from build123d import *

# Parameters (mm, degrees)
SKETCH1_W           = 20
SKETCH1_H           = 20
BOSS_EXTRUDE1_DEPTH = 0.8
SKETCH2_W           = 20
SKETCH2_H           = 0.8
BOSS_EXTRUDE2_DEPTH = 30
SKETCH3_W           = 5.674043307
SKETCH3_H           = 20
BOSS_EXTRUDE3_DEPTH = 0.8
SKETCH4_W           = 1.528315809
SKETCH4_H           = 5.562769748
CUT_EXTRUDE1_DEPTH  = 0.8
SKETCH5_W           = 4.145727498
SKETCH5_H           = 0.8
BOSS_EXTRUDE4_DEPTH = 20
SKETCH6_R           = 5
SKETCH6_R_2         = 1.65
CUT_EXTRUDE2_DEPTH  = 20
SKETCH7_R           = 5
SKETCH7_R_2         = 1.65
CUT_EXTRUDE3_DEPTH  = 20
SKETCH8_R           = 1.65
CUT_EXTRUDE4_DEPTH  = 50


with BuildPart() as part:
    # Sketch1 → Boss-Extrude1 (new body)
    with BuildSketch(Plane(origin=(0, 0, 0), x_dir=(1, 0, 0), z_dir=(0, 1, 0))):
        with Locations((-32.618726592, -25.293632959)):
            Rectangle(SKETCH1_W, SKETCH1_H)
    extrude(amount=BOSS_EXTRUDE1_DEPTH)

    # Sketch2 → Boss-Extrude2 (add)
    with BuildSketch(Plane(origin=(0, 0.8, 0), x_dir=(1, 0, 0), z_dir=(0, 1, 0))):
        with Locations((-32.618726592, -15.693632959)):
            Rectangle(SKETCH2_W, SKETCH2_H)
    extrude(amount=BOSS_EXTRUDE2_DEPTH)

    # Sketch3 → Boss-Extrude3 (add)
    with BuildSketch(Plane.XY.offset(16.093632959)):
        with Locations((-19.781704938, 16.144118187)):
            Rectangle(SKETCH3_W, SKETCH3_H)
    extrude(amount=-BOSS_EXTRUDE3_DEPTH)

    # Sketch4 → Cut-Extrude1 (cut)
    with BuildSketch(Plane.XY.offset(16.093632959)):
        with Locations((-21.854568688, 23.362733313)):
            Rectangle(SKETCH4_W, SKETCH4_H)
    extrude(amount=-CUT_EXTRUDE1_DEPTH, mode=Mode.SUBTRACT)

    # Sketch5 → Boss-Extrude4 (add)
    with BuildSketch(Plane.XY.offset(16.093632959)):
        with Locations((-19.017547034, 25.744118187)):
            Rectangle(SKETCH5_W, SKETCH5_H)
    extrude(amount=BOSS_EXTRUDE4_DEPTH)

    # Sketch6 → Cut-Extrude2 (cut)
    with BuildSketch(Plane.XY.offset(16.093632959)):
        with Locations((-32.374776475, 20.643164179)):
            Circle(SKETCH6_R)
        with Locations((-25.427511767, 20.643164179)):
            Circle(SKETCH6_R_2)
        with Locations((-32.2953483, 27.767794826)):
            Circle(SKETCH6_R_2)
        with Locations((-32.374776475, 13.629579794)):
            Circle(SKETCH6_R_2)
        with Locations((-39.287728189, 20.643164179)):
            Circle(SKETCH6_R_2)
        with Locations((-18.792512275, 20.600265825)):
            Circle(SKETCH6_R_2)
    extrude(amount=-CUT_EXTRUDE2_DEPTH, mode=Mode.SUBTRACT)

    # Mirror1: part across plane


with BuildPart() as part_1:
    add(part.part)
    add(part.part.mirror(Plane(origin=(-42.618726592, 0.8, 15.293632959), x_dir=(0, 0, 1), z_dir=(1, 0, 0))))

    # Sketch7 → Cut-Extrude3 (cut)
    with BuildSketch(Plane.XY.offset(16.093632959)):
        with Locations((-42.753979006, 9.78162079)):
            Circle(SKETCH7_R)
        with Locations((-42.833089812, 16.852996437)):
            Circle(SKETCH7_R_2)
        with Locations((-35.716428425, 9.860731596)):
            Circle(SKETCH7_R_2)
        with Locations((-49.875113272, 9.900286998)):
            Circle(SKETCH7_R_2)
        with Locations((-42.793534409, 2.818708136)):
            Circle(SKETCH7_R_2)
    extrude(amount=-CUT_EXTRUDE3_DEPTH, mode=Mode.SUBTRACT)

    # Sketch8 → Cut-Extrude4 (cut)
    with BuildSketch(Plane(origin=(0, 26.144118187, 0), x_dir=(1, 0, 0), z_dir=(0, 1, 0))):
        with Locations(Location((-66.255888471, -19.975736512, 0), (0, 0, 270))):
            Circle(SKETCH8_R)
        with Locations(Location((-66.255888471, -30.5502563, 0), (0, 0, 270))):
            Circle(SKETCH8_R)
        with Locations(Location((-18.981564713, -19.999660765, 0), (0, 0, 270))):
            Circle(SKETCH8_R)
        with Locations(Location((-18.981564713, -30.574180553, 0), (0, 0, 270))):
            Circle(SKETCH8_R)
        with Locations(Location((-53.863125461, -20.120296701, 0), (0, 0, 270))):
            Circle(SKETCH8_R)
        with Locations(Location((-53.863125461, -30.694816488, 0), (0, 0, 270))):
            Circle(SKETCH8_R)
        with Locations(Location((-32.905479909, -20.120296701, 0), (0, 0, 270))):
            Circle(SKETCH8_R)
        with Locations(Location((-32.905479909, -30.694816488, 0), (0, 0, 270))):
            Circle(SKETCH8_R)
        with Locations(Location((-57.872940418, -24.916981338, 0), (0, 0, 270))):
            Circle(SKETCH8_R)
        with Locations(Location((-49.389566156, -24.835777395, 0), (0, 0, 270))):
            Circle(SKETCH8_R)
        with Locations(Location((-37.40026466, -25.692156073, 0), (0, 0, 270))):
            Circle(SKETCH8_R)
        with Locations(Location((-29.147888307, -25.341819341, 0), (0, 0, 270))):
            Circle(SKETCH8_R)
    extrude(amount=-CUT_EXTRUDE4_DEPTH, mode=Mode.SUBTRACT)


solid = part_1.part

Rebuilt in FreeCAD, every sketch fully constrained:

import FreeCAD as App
import Part
import Sketcher
from FreeCAD import Vector


def add_polygon(sketch, points):
    """Adds a closed chain of lines whose ends are joined by coincident constraints."""
    first, n = sketch.GeometryCount, len(points)
    for a, b in zip(points, points[1:] + points[:1]):
        sketch.addGeometry(Part.LineSegment(App.Vector(*a, 0), App.Vector(*b, 0)), False)
    for i in range(n):
        sketch.addConstraint(Sketcher.Constraint("Coincident", first + i, 2, first + (i + 1) % n, 1))

doc = App.newDocument("Part")
body = doc.addObject("PartDesign::Body", "Body")

sketch1 = doc.addObject("Sketcher::SketchObject", "Sketch")
body.addObject(sketch1)
sketch1.AttachmentSupport = (doc.XZ_Plane, [""])
sketch1.MapMode = "FlatFace"
add_polygon(sketch1, [(-42.618727, 15.293633), (-42.618727, 35.293633), (-22.618727, 35.293633), (-22.618727, 15.293633)])
sketch1.addConstraint([
    Sketcher.Constraint("Vertical", 0),
    Sketcher.Constraint("Horizontal", 1),
    Sketcher.Constraint("Vertical", 2),
    Sketcher.Constraint("Horizontal", 3),
    Sketcher.Constraint("Equal", 3, 0),
    Sketcher.Constraint("DistanceX", 1, 1, 1, 2, 20.0),
    Sketcher.Constraint("DistanceX", 0, 2, -1, 1, 42.618727),
    Sketcher.Constraint("DistanceY", -1, 1, 0, 2, 35.293633),
])
pad1 = doc.addObject("PartDesign::Pad", "Pad")
body.addObject(pad1)
pad1.Profile = sketch1
pad1.Length = 0.8
pad1.Reversed = True

sketch2 = doc.addObject("Sketcher::SketchObject", "Sketch001")
body.addObject(sketch2)
sketch2.AttachmentSupport = (doc.XZ_Plane, [""])
sketch2.MapMode = "FlatFace"
sketch2.AttachmentOffset = App.Placement(Vector(0, 0, -0.8), App.Rotation())
add_polygon(sketch2, [(-42.618727, 15.293633), (-42.618727, 16.093633), (-22.618727, 16.093633), (-22.618727, 15.293633)])
sketch2.addConstraint([
    Sketcher.Constraint("Vertical", 0),
    Sketcher.Constraint("Horizontal", 1),
    Sketcher.Constraint("Vertical", 2),
    Sketcher.Constraint("Horizontal", 3),
    Sketcher.Constraint("DistanceX", 1, 1, 1, 2, 20.0),
    Sketcher.Constraint("DistanceY", 0, 1, 0, 2, 0.8),
    Sketcher.Constraint("DistanceX", 0, 2, -1, 1, 42.618727),
    Sketcher.Constraint("DistanceY", -1, 1, 0, 2, 16.093633),
])
pad2 = doc.addObject("PartDesign::Pad", "Pad001")
body.addObject(pad2)
pad2.Profile = sketch2
pad2.Length = 30
pad2.Reversed = True

sketch3 = doc.addObject("Sketcher::SketchObject", "Sketch002")
body.addObject(sketch3)
sketch3.AttachmentSupport = (doc.XY_Plane, [""])
sketch3.MapMode = "FlatFace"
sketch3.AttachmentOffset = App.Placement(Vector(0, 0, 16.093633), App.Rotation())
add_polygon(sketch3, [(-22.618727, 26.144118), (-22.618727, 6.144118), (-16.944683, 6.144118), (-16.944683, 26.144118)])
sketch3.addConstraint([
    Sketcher.Constraint("Vertical", 0),
    Sketcher.Constraint("Horizontal", 1),
    Sketcher.Constraint("Vertical", 2),
    Sketcher.Constraint("Horizontal", 3),
    Sketcher.Constraint("DistanceY", 0, 2, 0, 1, 20.0),
    Sketcher.Constraint("DistanceX", 1, 1, 1, 2, 5.674043),
    Sketcher.Constraint("DistanceY", -1, 1, 0, 2, 6.144118),
    Sketcher.Constraint("DistanceX", 0, 2, -1, 1, 22.618727),
])
pad3 = doc.addObject("PartDesign::Pad", "Pad002")
body.addObject(pad3)
pad3.Profile = sketch3
pad3.Length = 0.8
pad3.Reversed = True

sketch4 = doc.addObject("Sketcher::SketchObject", "Sketch003")
body.addObject(sketch4)
sketch4.AttachmentSupport = (doc.XY_Plane, [""])
sketch4.MapMode = "FlatFace"
sketch4.AttachmentOffset = App.Placement(Vector(0, 0, 16.093633), App.Rotation())
add_polygon(sketch4, [(-22.618727, 26.144118), (-22.618727, 20.581348), (-21.090411, 20.581348), (-21.090411, 26.144118)])
sketch4.addConstraint([
    Sketcher.Constraint("Vertical", 0),
    Sketcher.Constraint("Horizontal", 1),
    Sketcher.Constraint("Vertical", 2),
    Sketcher.Constraint("Horizontal", 3),
    Sketcher.Constraint("DistanceY", 0, 2, 0, 1, 5.56277),
    Sketcher.Constraint("DistanceX", 1, 1, 1, 2, 1.528316),
    Sketcher.Constraint("DistanceY", -1, 1, 0, 2, 20.581348),
    Sketcher.Constraint("DistanceX", 1, 2, -1, 1, 21.090411),
])
pocket1 = doc.addObject("PartDesign::Pocket", "Pocket")
body.addObject(pocket1)
pocket1.Profile = sketch4
pocket1.Length = 0.8

sketch5 = doc.addObject("Sketcher::SketchObject", "Sketch004")
body.addObject(sketch5)
sketch5.AttachmentSupport = (doc.XY_Plane, [""])
sketch5.MapMode = "FlatFace"
sketch5.AttachmentOffset = App.Placement(Vector(0, 0, 16.093633), App.Rotation())
add_polygon(sketch5, [(-21.090411, 26.144118), (-21.090411, 25.344118), (-16.944683, 25.344118), (-16.944683, 26.144118)])
sketch5.addConstraint([
    Sketcher.Constraint("Vertical", 0),
    Sketcher.Constraint("Horizontal", 1),
    Sketcher.Constraint("Vertical", 2),
    Sketcher.Constraint("Horizontal", 3),
    Sketcher.Constraint("DistanceY", 0, 2, 0, 1, 0.8),
    Sketcher.Constraint("DistanceX", 1, 1, 1, 2, 4.145727),
    Sketcher.Constraint("DistanceX", 0, 2, -1, 1, 21.090411),
    Sketcher.Constraint("DistanceY", -1, 1, 0, 2, 25.344118),
])
pad4 = doc.addObject("PartDesign::Pad", "Pad003")
body.addObject(pad4)
pad4.Profile = sketch5
pad4.Length = 20

sketch6 = doc.addObject("Sketcher::SketchObject", "Sketch005")
body.addObject(sketch6)
sketch6.AttachmentSupport = (doc.XY_Plane, [""])
sketch6.MapMode = "FlatFace"
sketch6.AttachmentOffset = App.Placement(Vector(0, 0, 16.093633), App.Rotation())
sketch6.addGeometry([
    Part.Circle(Vector(-32.374776, 20.643164, 0), Vector(0, 0, 1), 5),
    Part.Circle(Vector(-25.427512, 20.643164, 0), Vector(0, 0, 1), 1.65),
    Part.Circle(Vector(-32.295348, 27.767795, 0), Vector(0, 0, 1), 1.65),
    Part.Circle(Vector(-32.374776, 13.62958, 0), Vector(0, 0, 1), 1.65),
    Part.Circle(Vector(-39.287728, 20.643164, 0), Vector(0, 0, 1), 1.65),
    Part.Circle(Vector(-18.792512, 20.600266, 0), Vector(0, 0, 1), 1.65),
], False)
sketch6.addConstraint([
    Sketcher.Constraint("Equal", 1, 2),
    Sketcher.Constraint("Equal", 2, 3),
    Sketcher.Constraint("Equal", 3, 4),
    Sketcher.Constraint("Equal", 4, 5),
    Sketcher.Constraint("Horizontal", 0, 3, 1, 3),
    Sketcher.Constraint("Horizontal", 1, 3, 4, 3),
    Sketcher.Constraint("Vertical", 0, 3, 3, 3),
    Sketcher.Constraint("Diameter", 0, 10.0),
    Sketcher.Constraint("Diameter", 1, 3.3),
    Sketcher.Constraint("DistanceX", 1, 3, 5, 3, 6.634999),
    Sketcher.Constraint("DistanceY", 5, 3, 1, 3, 0.042898),
    Sketcher.Constraint("DistanceX", 1, 3, -1, 1, 25.427512),
    Sketcher.Constraint("DistanceX", 2, 3, -1, 1, 32.295348),
    Sketcher.Constraint("DistanceY", -1, 1, 3, 3, 13.62958),
    Sketcher.Constraint("DistanceX", 4, 3, -1, 1, 39.287728),
    Sketcher.Constraint("DistanceX", 0, 3, 2, 3, 0.079428),
    Sketcher.Constraint("DistanceY", 0, 3, 2, 3, 7.124631),
    Sketcher.Constraint("DistanceY", -1, 1, 0, 3, 20.643164),
])
pocket2 = doc.addObject("PartDesign::Pocket", "Pocket001")
body.addObject(pocket2)
pocket2.Profile = sketch6
pocket2.Length = 20
body2 = doc.addObject("PartDesign::Body", "Body001")
doc.recompute()

body2.BaseFeature = body
doc.recompute()

mirroring = doc.addObject("Part::Mirroring", "Mirroring")
mirroring.Source = body
mirroring.Base = Vector(-42.618727, 0.8, 15.293633)
mirroring.Normal = Vector(1, 0, 0)
body3 = doc.addObject("PartDesign::Body", "Body002")
body3.BaseFeature = mirroring
boolean = doc.addObject("PartDesign::Boolean", "Boolean")
body2.addObject(boolean)
boolean.Type = "Fuse"
boolean.addObjects([body3])
doc.recompute()

sketch7 = doc.addObject("Sketcher::SketchObject", "Sketch006")
body2.addObject(sketch7)
sketch7.AttachmentSupport = (doc.getObject("XY_Plane001"), [""])
sketch7.MapMode = "FlatFace"
sketch7.AttachmentOffset = App.Placement(Vector(0, 0, 16.093633), App.Rotation())
sketch7.addGeometry([
    Part.Circle(Vector(-42.753979, 9.781621, 0), Vector(0, 0, 1), 5),
    Part.Circle(Vector(-42.83309, 16.852996, 0), Vector(0, 0, 1), 1.65),
    Part.Circle(Vector(-35.716428, 9.860732, 0), Vector(0, 0, 1), 1.65),
    Part.Circle(Vector(-49.875113, 9.900287, 0), Vector(0, 0, 1), 1.65),
    Part.Circle(Vector(-42.793534, 2.818708, 0), Vector(0, 0, 1), 1.65),
], False)
sketch7.addConstraint([
    Sketcher.Constraint("Equal", 1, 2),
    Sketcher.Constraint("Equal", 2, 3),
    Sketcher.Constraint("Equal", 3, 4),
    Sketcher.Constraint("Diameter", 0, 10.0),
    Sketcher.Constraint("Diameter", 1, 3.3),
    Sketcher.Constraint("DistanceX", 0, 3, -1, 1, 42.753979),
    Sketcher.Constraint("DistanceY", -1, 1, 0, 3, 9.781621),
    Sketcher.Constraint("DistanceX", 1, 3, -1, 1, 42.83309),
    Sketcher.Constraint("DistanceX", 2, 3, -1, 1, 35.716428),
    Sketcher.Constraint("DistanceY", -1, 1, 2, 3, 9.860732),
    Sketcher.Constraint("DistanceY", -1, 1, 4, 3, 2.818708),
    Sketcher.Constraint("DistanceY", 3, 3, 1, 3, 6.952709),
    Sketcher.Constraint("DistanceX", 3, 3, 4, 3, 7.081579),
    Sketcher.Constraint("DistanceY", 4, 3, 3, 3, 7.081579),
    Sketcher.Constraint("DistanceX", 3, 3, -1, 1, 49.875113),
])
pocket3 = doc.addObject("PartDesign::Pocket", "Pocket002")
body2.addObject(pocket3)
pocket3.Profile = sketch7
pocket3.Length = 20

sketch8 = doc.addObject("Sketcher::SketchObject", "Sketch007")
body2.addObject(sketch8)
sketch8.AttachmentSupport = (doc.getObject("XZ_Plane001"), [""])
sketch8.MapMode = "FlatFace"
sketch8.AttachmentOffset = App.Placement(Vector(0, 0, -26.144118), App.Rotation())
sketch8.addGeometry([
    Part.Circle(Vector(-66.255888, 19.975737, 0), Vector(0, 0, 1), 1.65),
    Part.Circle(Vector(-66.255888, 30.550256, 0), Vector(0, 0, 1), 1.65),
    Part.Circle(Vector(-18.981565, 19.999661, 0), Vector(0, 0, 1), 1.65),
    Part.Circle(Vector(-18.981565, 30.574181, 0), Vector(0, 0, 1), 1.65),
    Part.Circle(Vector(-53.863125, 20.120297, 0), Vector(0, 0, 1), 1.65),
    Part.Circle(Vector(-53.863125, 30.694816, 0), Vector(0, 0, 1), 1.65),
    Part.Circle(Vector(-32.90548, 20.120297, 0), Vector(0, 0, 1), 1.65),
    Part.Circle(Vector(-32.90548, 30.694816, 0), Vector(0, 0, 1), 1.65),
    Part.Circle(Vector(-57.87294, 24.916981, 0), Vector(0, 0, 1), 1.65),
    Part.Circle(Vector(-49.389566, 24.835777, 0), Vector(0, 0, 1), 1.65),
    Part.Circle(Vector(-37.400265, 25.692156, 0), Vector(0, 0, 1), 1.65),
    Part.Circle(Vector(-29.147888, 25.341819, 0), Vector(0, 0, 1), 1.65),
], False)
sketch8.addConstraint([
    Sketcher.Constraint("Equal", 0, 1),
    Sketcher.Constraint("Equal", 1, 2),
    Sketcher.Constraint("Equal", 2, 3),
    Sketcher.Constraint("Equal", 3, 4),
    Sketcher.Constraint("Equal", 4, 5),
    Sketcher.Constraint("Equal", 5, 6),
    Sketcher.Constraint("Equal", 6, 7),
    Sketcher.Constraint("Equal", 7, 8),
    Sketcher.Constraint("Equal", 8, 9),
    Sketcher.Constraint("Equal", 9, 10),
    Sketcher.Constraint("Equal", 10, 11),
    Sketcher.Constraint("Horizontal", 4, 3, 6, 3),
    Sketcher.Constraint("Horizontal", 5, 3, 7, 3),
    Sketcher.Constraint("Vertical", 0, 3, 1, 3),
    Sketcher.Constraint("Vertical", 2, 3, 3, 3),
    Sketcher.Constraint("Vertical", 4, 3, 5, 3),
    Sketcher.Constraint("Vertical", 6, 3, 7, 3),
    Sketcher.Constraint("Diameter", 0, 3.3),
    Sketcher.Constraint("DistanceX", 9, 3, 10, 3, 11.989301),
    Sketcher.Constraint("DistanceX", 0, 3, -1, 1, 66.255888),
    Sketcher.Constraint("DistanceY", -1, 1, 2, 3, 19.999661),
    Sketcher.Constraint("DistanceY", -1, 1, 3, 3, 30.574181),
    Sketcher.Constraint("DistanceX", 6, 3, -1, 1, 32.90548),
    Sketcher.Constraint("DistanceX", 8, 3, -1, 1, 57.87294),
    Sketcher.Constraint("DistanceY", -1, 1, 8, 3, 24.916981),
    Sketcher.Constraint("DistanceX", 11, 3, -1, 1, 29.147888),
    Sketcher.Constraint("DistanceY", -1, 1, 11, 3, 25.341819),
    Sketcher.Constraint("DistanceY", 0, 3, 1, 3, 10.57452),
    Sketcher.Constraint("DistanceY", 0, 3, 4, 3, 0.14456),
    Sketcher.Constraint("DistanceX", 4, 3, 2, 3, 34.881561),
    Sketcher.Constraint("DistanceY", 4, 3, 5, 3, 10.57452),
    Sketcher.Constraint("DistanceX", 4, 3, 9, 3, 4.473559),
    Sketcher.Constraint("DistanceY", 4, 3, 9, 3, 4.715481),
    Sketcher.Constraint("DistanceY", 10, 3, 7, 3, 5.00266),
    Sketcher.Constraint("DistanceY", -1, 1, 0, 3, 19.975737),
    Sketcher.Constraint("DistanceX", 2, 3, -1, 1, 18.981565),
])
pocket4 = doc.addObject("PartDesign::Pocket", "Pocket003")
body2.addObject(pocket4)
pocket4.Profile = sketch8
pocket4.Length = 50
pocket4.Reversed = True
mirroring.Visibility = False

doc.recompute()
